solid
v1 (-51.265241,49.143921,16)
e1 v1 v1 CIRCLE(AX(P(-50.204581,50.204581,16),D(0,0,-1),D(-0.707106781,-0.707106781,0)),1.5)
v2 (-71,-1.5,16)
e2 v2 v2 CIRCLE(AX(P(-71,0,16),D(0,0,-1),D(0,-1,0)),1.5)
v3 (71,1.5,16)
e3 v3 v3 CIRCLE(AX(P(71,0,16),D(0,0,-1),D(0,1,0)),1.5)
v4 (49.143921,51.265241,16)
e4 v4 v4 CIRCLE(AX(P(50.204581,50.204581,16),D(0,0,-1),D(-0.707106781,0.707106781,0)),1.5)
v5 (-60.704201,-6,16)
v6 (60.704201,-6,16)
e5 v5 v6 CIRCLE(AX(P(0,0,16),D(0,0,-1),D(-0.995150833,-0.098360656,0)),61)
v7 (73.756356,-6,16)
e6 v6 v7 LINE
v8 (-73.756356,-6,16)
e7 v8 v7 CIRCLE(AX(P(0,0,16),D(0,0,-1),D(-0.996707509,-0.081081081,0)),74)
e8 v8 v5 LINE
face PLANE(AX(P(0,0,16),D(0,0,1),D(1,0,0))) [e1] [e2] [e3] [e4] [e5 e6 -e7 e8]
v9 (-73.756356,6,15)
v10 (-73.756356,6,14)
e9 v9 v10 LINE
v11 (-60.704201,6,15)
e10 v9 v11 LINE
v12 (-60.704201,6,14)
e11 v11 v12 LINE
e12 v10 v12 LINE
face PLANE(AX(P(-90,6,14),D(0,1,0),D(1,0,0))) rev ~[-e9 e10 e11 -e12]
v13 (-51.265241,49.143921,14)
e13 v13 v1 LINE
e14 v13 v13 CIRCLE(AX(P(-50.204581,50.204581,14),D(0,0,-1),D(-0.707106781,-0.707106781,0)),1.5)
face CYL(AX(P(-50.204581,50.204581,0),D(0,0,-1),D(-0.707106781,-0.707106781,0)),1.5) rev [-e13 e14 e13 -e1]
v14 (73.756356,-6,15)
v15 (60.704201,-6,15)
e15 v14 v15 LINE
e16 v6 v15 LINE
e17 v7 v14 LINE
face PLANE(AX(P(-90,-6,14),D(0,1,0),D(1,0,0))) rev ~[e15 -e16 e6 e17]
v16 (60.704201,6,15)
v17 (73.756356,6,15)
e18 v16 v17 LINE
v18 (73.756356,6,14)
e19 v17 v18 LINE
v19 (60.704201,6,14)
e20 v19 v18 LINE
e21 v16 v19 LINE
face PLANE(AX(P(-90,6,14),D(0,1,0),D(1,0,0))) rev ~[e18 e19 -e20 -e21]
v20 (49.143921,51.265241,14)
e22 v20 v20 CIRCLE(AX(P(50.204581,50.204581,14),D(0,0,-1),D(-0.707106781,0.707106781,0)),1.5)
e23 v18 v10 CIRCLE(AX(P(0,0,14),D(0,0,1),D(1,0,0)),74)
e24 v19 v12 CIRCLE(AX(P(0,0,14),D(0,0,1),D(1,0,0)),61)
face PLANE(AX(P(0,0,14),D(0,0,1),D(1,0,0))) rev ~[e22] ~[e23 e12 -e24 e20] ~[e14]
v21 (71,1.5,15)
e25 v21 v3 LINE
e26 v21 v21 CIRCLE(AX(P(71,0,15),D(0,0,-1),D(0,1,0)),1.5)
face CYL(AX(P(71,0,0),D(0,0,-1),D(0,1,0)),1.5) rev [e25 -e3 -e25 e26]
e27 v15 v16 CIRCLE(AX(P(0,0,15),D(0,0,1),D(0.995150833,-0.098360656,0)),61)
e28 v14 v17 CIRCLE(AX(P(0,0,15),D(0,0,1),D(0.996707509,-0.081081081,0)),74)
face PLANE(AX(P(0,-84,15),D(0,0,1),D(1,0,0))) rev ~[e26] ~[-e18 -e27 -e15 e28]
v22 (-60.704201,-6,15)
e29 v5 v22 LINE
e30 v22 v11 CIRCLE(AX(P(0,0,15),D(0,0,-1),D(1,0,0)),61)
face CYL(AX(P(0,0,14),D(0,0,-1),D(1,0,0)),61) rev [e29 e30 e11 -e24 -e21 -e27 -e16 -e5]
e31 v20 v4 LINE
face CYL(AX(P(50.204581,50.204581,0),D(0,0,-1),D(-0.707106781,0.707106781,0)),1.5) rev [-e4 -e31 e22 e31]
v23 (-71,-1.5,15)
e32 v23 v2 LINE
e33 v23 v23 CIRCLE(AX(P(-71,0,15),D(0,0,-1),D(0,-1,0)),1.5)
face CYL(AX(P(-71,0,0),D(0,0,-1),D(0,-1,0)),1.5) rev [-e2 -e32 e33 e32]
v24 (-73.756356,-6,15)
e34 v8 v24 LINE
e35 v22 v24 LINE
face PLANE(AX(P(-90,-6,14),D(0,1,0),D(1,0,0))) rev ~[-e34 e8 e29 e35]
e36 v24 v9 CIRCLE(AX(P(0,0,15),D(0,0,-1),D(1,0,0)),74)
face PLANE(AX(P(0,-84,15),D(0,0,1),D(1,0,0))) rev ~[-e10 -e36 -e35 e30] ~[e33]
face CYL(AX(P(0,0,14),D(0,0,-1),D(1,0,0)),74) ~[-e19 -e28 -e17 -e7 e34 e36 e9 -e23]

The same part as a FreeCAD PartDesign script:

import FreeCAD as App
import Part
import Sketcher
Q = App.Units.Quantity


def add_polygon(sketch, points):
    """Adds a closed chain of lines whose ends are joined by coincident constraints."""
    first, n = sketch.GeometryCount, len(points)
    for a, b in zip(points, points[1:] + points[:1]):
        sketch.addGeometry(Part.LineSegment(App.Vector(*a, 0), App.Vector(*b, 0)), False)
    for i in range(n):
        sketch.addConstraint(Sketcher.Constraint("Coincident", first + i, 2, first + (i + 1) % n, 1))

doc = App.newDocument("Part")
body = doc.addObject("PartDesign::Body", "Body")

# Sketch on XY plane
sketch1 = doc.addObject("Sketcher::SketchObject", "Sketch")
body.addObject(sketch1)
sketch1.AttachmentSupport = (doc.XY_Plane, [""])
sketch1.MapMode = "FlatFace"
sketch1.AttachmentOffset = App.Placement(App.Vector(0, 0, 14), App.Rotation())
add_polygon(sketch1, [(-90, -6), (-90, -186), (90, -186), (90, -6)])  # lines 0-3
sketch1.addConstraint(Sketcher.Constraint("Vertical", 0))
sketch1.addConstraint(Sketcher.Constraint("Horizontal", 1))
sketch1.addConstraint(Sketcher.Constraint("Vertical", 2))
sketch1.addConstraint(Sketcher.Constraint("Horizontal", 3))
sketch1.addConstraint(Sketcher.Constraint("Equal", 3, 0))
sketch1.addConstraint(Sketcher.Constraint("DistanceX", 1, 1, 1, 2, Q("180 mm")))
sketch1.addConstraint(Sketcher.Constraint("DistanceX", 0, 2, -1, 1, Q("90 mm")))
sketch1.addConstraint(Sketcher.Constraint("DistanceY", 0, 2, -1, 1, Q("186 mm")))
pad1 = doc.addObject("PartDesign::Pad", "Pad")
body.addObject(pad1)
pad1.Profile = sketch1
pad1.Length = 2
body2 = doc.addObject("PartDesign::Body", "Body001")

# Sketch on XY plane
sketch2 = doc.addObject("Sketcher::SketchObject", "Sketch001")
body2.addObject(sketch2)
sketch2.AttachmentSupport = (doc.getObject("XY_Plane001"), [""])
sketch2.MapMode = "FlatFace"
sketch2.AttachmentOffset = App.Placement(App.Vector(0, 0, 14), App.Rotation())
add_polygon(sketch2, [(-90, 6), (-90, -174), (90, -174), (90, 6)])  # lines 0-3
sketch2.addConstraint(Sketcher.Constraint("Vertical", 0))
sketch2.addConstraint(Sketcher.Constraint("Horizontal", 1))
sketch2.addConstraint(Sketcher.Constraint("Vertical", 2))
sketch2.addConstraint(Sketcher.Constraint("Horizontal", 3))
sketch2.addConstraint(Sketcher.Constraint("Equal", 3, 0))
sketch2.addConstraint(Sketcher.Constraint("DistanceX", 1, 1, 1, 2, Q("180 mm")))
sketch2.addConstraint(Sketcher.Constraint("DistanceX", 0, 2, -1, 1, Q("90 mm")))
sketch2.addConstraint(Sketcher.Constraint("DistanceY", 0, 2, -1, 1, Q("174 mm")))
pad2 = doc.addObject("PartDesign::Pad", "Pad001")
body2.addObject(pad2)
pad2.Profile = sketch2
pad2.Length = 1
body3 = doc.addObject("PartDesign::Body", "Body002")

# Sketch on XY plane
sketch3 = doc.addObject("Sketcher::SketchObject", "Sketch002")
body3.addObject(sketch3)
sketch3.AttachmentSupport = (doc.getObject("XY_Plane002"), [""])
sketch3.MapMode = "FlatFace"
sketch3.addGeometry(Part.Circle(App.Vector(0, 0, 0), App.Vector(0, 0, 1), 1.5), False)
sketch3.addConstraint(Sketcher.Constraint("Coincident", 0, 3, -1, 1))
sketch3.addConstraint(Sketcher.Constraint("Diameter", 0, Q("3 mm")))
pad3 = doc.addObject("PartDesign::Pad", "Pad002")
body3.addObject(pad3)
pad3.Profile = sketch3
pad3.Length = 60
body4 = doc.addObject("PartDesign::Body", "Body003")
doc.recompute()

body3.Placement = App.Placement(App.Vector(50.204581, -50.204581, 0), App.Rotation(App.Vector(0, 0, 1), 45))
boolean = doc.addObject("PartDesign::Boolean", "Boolean")
body4.addObject(boolean)
boolean.Type = "Fuse"
boolean.addObjects([body3])
body5 = doc.addObject("PartDesign::Body", "Body004")

# Sketch on XY plane
sketch4 = doc.addObject("Sketcher::SketchObject", "Sketch003")
body5.addObject(sketch4)
sketch4.AttachmentSupport = (doc.getObject("XY_Plane004"), [""])
sketch4.MapMode = "FlatFace"
sketch4.addGeometry(Part.Circle(App.Vector(71, 0, 0), App.Vector(0, 0, 1), 1.5), False)
sketch4.addConstraint(Sketcher.Constraint("PointOnObject", 0, 3, -1))
sketch4.addConstraint(Sketcher.Constraint("Diameter", 0, Q("3 mm")))
sketch4.addConstraint(Sketcher.Constraint("DistanceX", -1, 1, 0, 3, Q("71 mm")))
pad4 = doc.addObject("PartDesign::Pad", "Pad003")
body5.addObject(pad4)
pad4.Profile = sketch4
pad4.Length = 60
body6 = doc.addObject("PartDesign::Body", "Body005")

# Sketch on XY plane
sketch5 = doc.addObject("Sketcher::SketchObject", "Sketch004")
body6.addObject(sketch5)
sketch5.AttachmentSupport = (doc.getObject("XY_Plane005"), [""])
sketch5.MapMode = "FlatFace"
sketch5.addGeometry(Part.Circle(App.Vector(0, 0, 0), App.Vector(0, 0, 1), 1.5), False)
sketch5.addConstraint(Sketcher.Constraint("Coincident", 0, 3, -1, 1))
sketch5.addConstraint(Sketcher.Constraint("Diameter", 0, Q("3 mm")))
pad5 = doc.addObject("PartDesign::Pad", "Pad004")
body6.addObject(pad5)
pad5.Profile = sketch5
pad5.Length = 60
body7 = doc.addObject("PartDesign::Body", "Body006")
doc.recompute()

body6.Placement = App.Placement(App.Vector(50.204581, 50.204581, 0), App.Rotation(App.Vector(0, 0, 1), 135))
boolean2 = doc.addObject("PartDesign::Boolean", "Boolean001")
body7.addObject(boolean2)
boolean2.Type = "Fuse"
boolean2.addObjects([body6])
body8 = doc.addObject("PartDesign::Body", "Body007")

# Sketch on XY plane
sketch6 = doc.addObject("Sketcher::SketchObject", "Sketch005")
body8.addObject(sketch6)
sketch6.AttachmentSupport = (doc.getObject("XY_Plane007"), [""])
sketch6.MapMode = "FlatFace"
sketch6.addGeometry(Part.Circle(App.Vector(0, 0, 0), App.Vector(0, 0, 1), 1.5), False)
sketch6.addConstraint(Sketcher.Constraint("Coincident", 0, 3, -1, 1))
sketch6.addConstraint(Sketcher.Constraint("Diameter", 0, Q("3 mm")))
pad6 = doc.addObject("PartDesign::Pad", "Pad005")
body8.addObject(pad6)
pad6.Profile = sketch6
pad6.Length = 60
body9 = doc.addObject("PartDesign::Body", "Body008")
doc.recompute()

body8.Placement = App.Placement(App.Vector(-50.204581, 50.204581, 0), App.Rotation(App.Vector(0, 0, 1), 225))
boolean3 = doc.addObject("PartDesign::Boolean", "Boolean002")
body9.addObject(boolean3)
boolean3.Type = "Fuse"
boolean3.addObjects([body8])
body10 = doc.addObject("PartDesign::Body", "Body009")

# Sketch on XY plane
sketch7 = doc.addObject("Sketcher::SketchObject", "Sketch006")
body10.addObject(sketch7)
sketch7.AttachmentSupport = (doc.getObject("XY_Plane009"), [""])
sketch7.MapMode = "FlatFace"
sketch7.addGeometry(Part.Circle(App.Vector(-71, 0, 0), App.Vector(0, 0, 1), 1.5), False)
sketch7.addConstraint(Sketcher.Constraint("PointOnObject", 0, 3, -1))
sketch7.addConstraint(Sketcher.Constraint("Diameter", 0, Q("3 mm")))
sketch7.addConstraint(Sketcher.Constraint("DistanceX", 0, 3, -1, 1, Q("71 mm")))
pad7 = doc.addObject("PartDesign::Pad", "Pad006")
body10.addObject(pad7)
pad7.Profile = sketch7
pad7.Length = 60
body11 = doc.addObject("PartDesign::Body", "Body010")

# Sketch on XY plane
sketch8 = doc.addObject("Sketcher::SketchObject", "Sketch007")
body11.addObject(sketch8)
sketch8.AttachmentSupport = (doc.getObject("XY_Plane010"), [""])
sketch8.MapMode = "FlatFace"
sketch8.addGeometry(Part.Circle(App.Vector(0, 0, 0), App.Vector(0, 0, 1), 1.5), False)
sketch8.addConstraint(Sketcher.Constraint("Coincident", 0, 3, -1, 1))
sketch8.addConstraint(Sketcher.Constraint("Diameter", 0, Q("3 mm")))
pad8 = doc.addObject("PartDesign::Pad", "Pad007")
body11.addObject(pad8)
pad8.Profile = sketch8
pad8.Length = 60
body12 = doc.addObject("PartDesign::Body", "Body011")
doc.recompute()

body11.Placement = App.Placement(App.Vector(-50.204581, -50.204581, 0), App.Rotation(App.Vector(0, 0, -1), 45))
boolean4 = doc.addObject("PartDesign::Boolean", "Boolean003")
body12.addObject(boolean4)
boolean4.Type = "Fuse"
boolean4.addObjects([body11])
body13 = doc.addObject("PartDesign::Body", "Body012")
body13.AllowCompound = True

# Sketch on XY plane
sketch9 = doc.addObject("Sketcher::SketchObject", "Sketch008")
body13.addObject(sketch9)
sketch9.AttachmentSupport = (doc.getObject("XY_Plane012"), [""])
sketch9.MapMode = "FlatFace"
sketch9.addGeometry(Part.Circle(App.Vector(0, -71, 0), App.Vector(0, 0, 1), 1.5), False)
sketch9.addConstraint(Sketcher.Constraint("PointOnObject", 0, 3, -2))
sketch9.addConstraint(Sketcher.Constraint("Diameter", 0, Q("3 mm")))
sketch9.addConstraint(Sketcher.Constraint("DistanceY", 0, 3, -1, 1, Q("71 mm")))
pad9 = doc.addObject("PartDesign::Pad", "Pad008")
body13.addObject(pad9)
pad9.Profile = sketch9
pad9.Length = 60
doc.recompute()

boolean5 = doc.addObject("PartDesign::Boolean", "Boolean004")
body13.addObject(boolean5)
boolean5.Type = "Fuse"
boolean5.addObjects([body4])
doc.recompute()

boolean6 = doc.addObject("PartDesign::Boolean", "Boolean005")
body13.addObject(boolean6)
boolean6.Type = "Fuse"
boolean6.addObjects([body5])
doc.recompute()

boolean7 = doc.addObject("PartDesign::Boolean", "Boolean006")
body13.addObject(boolean7)
boolean7.Type = "Fuse"
boolean7.addObjects([body7])
doc.recompute()

boolean8 = doc.addObject("PartDesign::Boolean", "Boolean007")
body13.addObject(boolean8)
boolean8.Type = "Fuse"
boolean8.addObjects([body9])
doc.recompute()

boolean9 = doc.addObject("PartDesign::Boolean", "Boolean008")
body13.addObject(boolean9)
boolean9.Type = "Fuse"
boolean9.addObjects([body10])
doc.recompute()

boolean10 = doc.addObject("PartDesign::Boolean", "Boolean009")
body13.addObject(boolean10)
boolean10.Type = "Fuse"
boolean10.addObjects([body12])
body14 = doc.addObject("PartDesign::Body", "Body013")

# Sketch on XY plane
sketch10 = doc.addObject("Sketcher::SketchObject", "Sketch009")
body14.addObject(sketch10)
sketch10.AttachmentSupport = (doc.getObject("XY_Plane013"), [""])
sketch10.MapMode = "FlatFace"
sketch10.AttachmentOffset = App.Placement(App.Vector(0, 0, 14), App.Rotation())
sketch10.addGeometry(Part.Circle(App.Vector(0, 0, 0), App.Vector(0, 0, 1), 74), False)
sketch10.addGeometry(Part.Circle(App.Vector(0, 0, 0), App.Vector(0, 0, 1), 61), False)
sketch10.addConstraint(Sketcher.Constraint("Coincident", 0, 3, -1, 1))
sketch10.addConstraint(Sketcher.Constraint("Coincident", 1, 3, -1, 1))
sketch10.addConstraint(Sketcher.Constraint("Diameter", 0, Q("148 mm")))
sketch10.addConstraint(Sketcher.Constraint("Diameter", 1, Q("122 mm")))
pad10 = doc.addObject("PartDesign::Pad", "Pad009")
body14.addObject(pad10)
pad10.Profile = sketch10
pad10.Length = 2
doc.recompute()

boolean11 = doc.addObject("PartDesign::Boolean", "Boolean010")
body14.addObject(boolean11)
boolean11.Type = "Cut"
boolean11.addObjects([body13])
doc.recompute()

boolean12 = doc.addObject("PartDesign::Boolean", "Boolean011")
body14.addObject(boolean12)
boolean12.Type = "Cut"
boolean12.addObjects([body2])
doc.recompute()

boolean13 = doc.addObject("PartDesign::Boolean", "Boolean012")
body14.addObject(boolean13)
boolean13.Type = "Cut"
boolean13.addObjects([body])

doc.recompute()
